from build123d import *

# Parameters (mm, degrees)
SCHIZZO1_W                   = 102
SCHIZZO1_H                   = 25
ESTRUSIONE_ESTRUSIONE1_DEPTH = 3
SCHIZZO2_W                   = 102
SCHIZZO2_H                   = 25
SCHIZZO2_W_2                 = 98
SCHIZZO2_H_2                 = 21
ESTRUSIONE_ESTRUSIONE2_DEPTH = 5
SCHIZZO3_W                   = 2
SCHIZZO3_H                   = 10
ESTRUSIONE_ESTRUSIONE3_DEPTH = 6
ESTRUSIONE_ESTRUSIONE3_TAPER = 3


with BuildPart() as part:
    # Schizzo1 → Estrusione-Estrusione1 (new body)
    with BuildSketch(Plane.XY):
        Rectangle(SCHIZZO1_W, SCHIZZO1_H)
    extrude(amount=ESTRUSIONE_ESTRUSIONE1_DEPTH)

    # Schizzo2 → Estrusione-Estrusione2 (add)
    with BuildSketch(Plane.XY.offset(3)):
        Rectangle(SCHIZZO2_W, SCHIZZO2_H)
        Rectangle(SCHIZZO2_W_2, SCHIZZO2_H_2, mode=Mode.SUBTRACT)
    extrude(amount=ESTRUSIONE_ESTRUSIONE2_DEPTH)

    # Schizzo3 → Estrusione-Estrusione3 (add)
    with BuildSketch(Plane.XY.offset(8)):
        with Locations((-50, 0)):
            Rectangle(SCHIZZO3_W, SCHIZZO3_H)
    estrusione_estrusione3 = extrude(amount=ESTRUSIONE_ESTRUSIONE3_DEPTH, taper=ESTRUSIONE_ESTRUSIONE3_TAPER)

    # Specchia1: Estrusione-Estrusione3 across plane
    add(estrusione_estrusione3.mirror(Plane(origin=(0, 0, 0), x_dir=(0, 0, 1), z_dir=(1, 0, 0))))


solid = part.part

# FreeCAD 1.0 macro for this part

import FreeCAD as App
import Part
import Sketcher

V = App.Vector
Q = App.Units.Quantity

doc = App.newDocument("Part")
body = doc.addObject("PartDesign::Body", "Body")

sketch1 = body.newObject("Sketcher::SketchObject", "Sketch")
sketch1.AttachmentSupport = (doc.getObject("XY_Plane"), [""])
sketch1.MapMode = "FlatFace"
sketch1.addGeometry([
    Part.LineSegment(V(-51, 12, 0), V(-51, -12, 0)),
    Part.LineSegment(V(-51, -12, 0), V(51, -12, 0)),
    Part.LineSegment(V(51, -12, 0), V(51, 12, 0)),
    Part.LineSegment(V(51, 12, 0), V(-51, 12, 0)),
], False)
sketch1.addConstraint([
    Sketcher.Constraint("Coincident", 0, 2, 1, 1),
    Sketcher.Constraint("Coincident", 1, 2, 2, 1),
    Sketcher.Constraint("Coincident", 2, 2, 3, 1),
    Sketcher.Constraint("Coincident", 3, 2, 0, 1),
    Sketcher.Constraint("Vertical", 0),
    Sketcher.Constraint("Horizontal", 1),
    Sketcher.Constraint("Vertical", 2),
    Sketcher.Constraint("Horizontal", 3),
    Sketcher.Constraint("Symmetric", 0, 2, 2, 2, -1, 1),
    Sketcher.Constraint("DistanceX", 1, 1, 1, 2, Q("102 mm")),
    Sketcher.Constraint("DistanceY", 0, 2, 0, 1, Q("25 mm")),
])
pad1 = body.newObject("PartDesign::Pad", "Pad")
pad1.Profile = sketch1
pad1.Length = 3

sketch2 = body.newObject("Sketcher::SketchObject", "Sketch001")
sketch2.AttachmentSupport = (doc.getObject("XY_Plane"), [""])
sketch2.MapMode = "FlatFace"
sketch2.AttachmentOffset = App.Placement(V(0, 0, 3), App.Rotation())
sketch2.addGeometry([
    Part.LineSegment(V(-51, 12, 0), V(-51, -12, 0)),
    Part.LineSegment(V(-51, -12, 0), V(51, -12, 0)),
    Part.LineSegment(V(51, -12, 0), V(51, 12, 0)),
    Part.LineSegment(V(51, 12, 0), V(-51, 12, 0)),
    Part.LineSegment(V(49, -10, 0), V(-49, -10, 0)),
    Part.LineSegment(V(-49, -10, 0), V(-49, 10, 0)),
    Part.LineSegment(V(-49, 10, 0), V(49, 10, 0)),
    Part.LineSegment(V(49, 10, 0), V(49, -10, 0)),
], False)
sketch2.addConstraint([
    Sketcher.Constraint("Coincident", 0, 2, 1, 1),
    Sketcher.Constraint("Coincident", 1, 2, 2, 1),
    Sketcher.Constraint("Coincident", 2, 2, 3, 1),
    Sketcher.Constraint("Coincident", 3, 2, 0, 1),
    Sketcher.Constraint("Coincident", 4, 2, 5, 1),
    Sketcher.Constraint("Coincident", 5, 2, 6, 1),
    Sketcher.Constraint("Coincident", 6, 2, 7, 1),
    Sketcher.Constraint("Coincident", 7, 2, 4, 1),
    Sketcher.Constraint("Vertical", 0),
    Sketcher.Constraint("Horizontal", 1),
    Sketcher.Constraint("Vertical", 2),
    Sketcher.Constraint("Horizontal", 3),
    Sketcher.Constraint("Horizontal", 4),
    Sketcher.Constraint("Vertical", 5),
    Sketcher.Constraint("Horizontal", 6),
    Sketcher.Constraint("Vertical", 7),
    Sketcher.Constraint("Symmetric", 0, 2, 2, 2, -1, 1),
    Sketcher.Constraint("Symmetric", 4, 2, 6, 2, -1, 1),
    Sketcher.Constraint("DistanceX", 1, 1, 1, 2, Q("102 mm")),
    Sketcher.Constraint("DistanceX", 4, 2, 4, 1, Q("98 mm")),
    Sketcher.Constraint("DistanceY", 0, 2, 0, 1, Q("25 mm")),
    Sketcher.Constraint("DistanceY", 5, 1, 5, 2, Q("21 mm")),
])
pad2 = body.newObject("PartDesign::Pad", "Pad001")
pad2.Profile = sketch2
pad2.Length = 5

sketch3 = body.newObject("Sketcher::SketchObject", "Sketch002")
sketch3.AttachmentSupport = (doc.getObject("XY_Plane"), [""])
sketch3.MapMode = "FlatFace"
sketch3.AttachmentOffset = App.Placement(V(0, 0, 8), App.Rotation())
sketch3.addGeometry([
    Part.LineSegment(V(-51, 5, 0), V(-51, -5, 0)),
    Part.LineSegment(V(-51, -5, 0), V(-49, -5, 0)),
    Part.LineSegment(V(-49, -5, 0), V(-49, 5, 0)),
    Part.LineSegment(V(-49, 5, 0), V(-51, 5, 0)),
], False)
sketch3.addConstraint([
    Sketcher.Constraint("Coincident", 0, 2, 1, 1),
    Sketcher.Constraint("Coincident", 1, 2, 2, 1),
    Sketcher.Constraint("Coincident", 2, 2, 3, 1),
    Sketcher.Constraint("Coincident", 3, 2, 0, 1),
    Sketcher.Constraint("Vertical", 0),
    Sketcher.Constraint("Horizontal", 1),
    Sketcher.Constraint("Vertical", 2),
    Sketcher.Constraint("Horizontal", 3),
    Sketcher.Constraint("DistanceX", 1, 1, 1, 2, Q("2 mm")),
    Sketcher.Constraint("DistanceY", 0, 2, 0, 1, Q("10 mm")),
    Sketcher.Constraint("DistanceX", 0, 2, -1, 1, Q("51 mm")),
    Sketcher.Constraint("DistanceY", 0, 2, -1, 1, Q("5 mm")),
])
pad3 = body.newObject("PartDesign::Pad", "Pad002")
pad3.Profile = sketch3
pad3.Length = 6
pad3.TaperAngle = -3
doc.recompute()

mirrored = body.newObject("PartDesign::Mirrored", "Mirrored")
mirrored.Originals = [pad3]
mirrored.MirrorPlane = (doc.getObject("YZ_Plane"), [""])
body.Tip = mirrored

doc.recompute()
